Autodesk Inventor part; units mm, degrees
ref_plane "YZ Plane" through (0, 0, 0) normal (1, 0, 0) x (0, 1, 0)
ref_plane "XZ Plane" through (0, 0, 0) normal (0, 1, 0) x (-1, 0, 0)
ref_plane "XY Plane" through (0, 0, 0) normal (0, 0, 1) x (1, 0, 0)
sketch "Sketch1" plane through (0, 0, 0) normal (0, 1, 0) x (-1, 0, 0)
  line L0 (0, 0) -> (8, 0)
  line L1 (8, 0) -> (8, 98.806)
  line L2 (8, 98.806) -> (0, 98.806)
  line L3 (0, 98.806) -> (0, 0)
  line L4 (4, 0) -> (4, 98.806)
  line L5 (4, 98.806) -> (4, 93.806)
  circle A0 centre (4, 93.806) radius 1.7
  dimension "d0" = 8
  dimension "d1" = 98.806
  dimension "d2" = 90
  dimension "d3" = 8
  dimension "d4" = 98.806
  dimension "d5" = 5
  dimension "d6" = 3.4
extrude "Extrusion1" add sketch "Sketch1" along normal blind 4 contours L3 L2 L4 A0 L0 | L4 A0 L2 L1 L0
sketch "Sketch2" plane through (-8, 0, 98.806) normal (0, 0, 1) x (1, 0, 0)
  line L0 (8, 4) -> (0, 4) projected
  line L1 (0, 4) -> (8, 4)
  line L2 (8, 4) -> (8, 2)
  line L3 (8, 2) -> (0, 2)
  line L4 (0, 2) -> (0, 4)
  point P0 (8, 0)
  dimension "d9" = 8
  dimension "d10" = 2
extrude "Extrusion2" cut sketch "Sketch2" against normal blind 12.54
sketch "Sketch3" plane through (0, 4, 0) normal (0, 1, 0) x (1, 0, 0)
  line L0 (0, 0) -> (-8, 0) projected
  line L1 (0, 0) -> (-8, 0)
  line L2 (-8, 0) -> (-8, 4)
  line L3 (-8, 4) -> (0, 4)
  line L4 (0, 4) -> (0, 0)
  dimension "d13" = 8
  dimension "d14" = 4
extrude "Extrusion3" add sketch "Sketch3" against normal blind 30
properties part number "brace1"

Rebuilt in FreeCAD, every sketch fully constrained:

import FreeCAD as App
import Part
import Sketcher


def add_polygon(sketch, points):
    """Adds a closed chain of lines whose ends are joined by coincident constraints."""
    first, n = sketch.GeometryCount, len(points)
    for a, b in zip(points, points[1:] + points[:1]):
        sketch.addGeometry(Part.LineSegment(App.Vector(*a, 0), App.Vector(*b, 0)), False)
    for i in range(n):
        sketch.addConstraint(Sketcher.Constraint("Coincident", first + i, 2, first + (i + 1) % n, 1))

doc = App.newDocument("Part")
params = doc.addObject("Spreadsheet::Sheet", "Params")
for row, (alias, value) in enumerate([
    ("sketch1_diameter", "3.4 mm"),
    ("sketch1_width", "8 mm"),
    ("pad1_length", "4 mm"),
    ("sketch2_width", "8 mm"),
    ("sketch2_height", "2 mm"),
    ("pocket1_length", "12.54 mm"),
    ("sketch3_width", "8 mm"),
    ("sketch3_height", "4 mm"),
    ("pad2_length", "30 mm"),
], start=1):
    params.set(f"A{row}", alias)
    params.set(f"B{row}", "=" + value)
    params.setAlias(f"B{row}", alias)

body = doc.addObject("PartDesign::Body", "Body")

sketch1 = doc.addObject("Sketcher::SketchObject", "Sketch")
body.addObject(sketch1)
sketch1.AttachmentSupport = (doc.XZ_Plane, [""])
sketch1.MapMode = "FlatFace"
add_polygon(sketch1, [(0, 98.806), (0, 0), (-8, 0), (-8, 98.806)])
sketch1.addGeometry(Part.Circle(App.Vector(-4, 93.806, 0), App.Vector(0, 0, 1), 1.7), False)
sketch1.addConstraint([
    Sketcher.Constraint("Vertical", 0),
    Sketcher.Constraint("Horizontal", 1),
    Sketcher.Constraint("Vertical", 2),
    Sketcher.Constraint("Horizontal", 3),
    Sketcher.Constraint("Coincident", 0, 2, -1, 1),
    Sketcher.Constraint("Diameter", 4, 3.4),
    Sketcher.Constraint("DistanceX", 1, 2, 1, 1, 8.0),
    Sketcher.Constraint("DistanceY", 4, 3, 2, 2, 5.0),
    Sketcher.Constraint("DistanceY", 0, 2, 0, 1, 98.806),
    Sketcher.Constraint("DistanceX", 4, 3, -1, 1, 4.0),
])
sketch1.setExpression("Constraints[9]", "Params.sketch1_diameter")
sketch1.setExpression("Constraints[10]", "Params.sketch1_width")
pad1 = doc.addObject("PartDesign::Pad", "Pad")
body.addObject(pad1)
pad1.Profile = sketch1
pad1.setExpression("Length", "Params.pad1_length")
pad1.Reversed = True

sketch2 = doc.addObject("Sketcher::SketchObject", "Sketch001")
body.addObject(sketch2)
sketch2.AttachmentSupport = (doc.XY_Plane, [""])
sketch2.MapMode = "FlatFace"
sketch2.AttachmentOffset = App.Placement(App.Vector(0, 0, 98.806), App.Rotation())
add_polygon(sketch2, [(0, 2), (0, 4), (-8, 4), (-8, 2)])
sketch2.addConstraint([
    Sketcher.Constraint("Vertical", 0),
    Sketcher.Constraint("Horizontal", 1),
    Sketcher.Constraint("Vertical", 2),
    Sketcher.Constraint("Horizontal", 3),
    Sketcher.Constraint("PointOnObject", 0, 2, -2),
    Sketcher.Constraint("DistanceX", 1, 2, 1, 1, 8.0),
    Sketcher.Constraint("DistanceY", 0, 1, 0, 2, 2.0),
    Sketcher.Constraint("DistanceY", -1, 1, 2, 2, 2.0),
])
sketch2.setExpression("Constraints[9]", "Params.sketch2_width")
sketch2.setExpression("Constraints[10]", "Params.sketch2_height")
pocket1 = doc.addObject("PartDesign::Pocket", "Pocket")
body.addObject(pocket1)
pocket1.Profile = sketch2
pocket1.setExpression("Length", "Params.pocket1_length")

sketch3 = doc.addObject("Sketcher::SketchObject", "Sketch002")
body.addObject(sketch3)
sketch3.AttachmentSupport = (doc.XZ_Plane, [""])
sketch3.MapMode = "FlatFace"
sketch3.AttachmentOffset = App.Placement(App.Vector(0, 0, -4), App.Rotation())
add_polygon(sketch3, [(-8, 0), (0, 0), (0, -4), (-8, -4)])
sketch3.addConstraint([
    Sketcher.Constraint("Horizontal", 0),
    Sketcher.Constraint("Vertical", 1),
    Sketcher.Constraint("Horizontal", 2),
    Sketcher.Constraint("Vertical", 3),
    Sketcher.Constraint("Coincident", 0, 2, -1, 1),
    Sketcher.Constraint("DistanceX", 0, 1, 0, 2, 8.0),
    Sketcher.Constraint("DistanceY", 1, 2, 1, 1, 4.0),
])
sketch3.setExpression("Constraints[9]", "Params.sketch3_width")
sketch3.setExpression("Constraints[10]", "Params.sketch3_height")
pad2 = doc.addObject("PartDesign::Pad", "Pad001")
body.addObject(pad2)
pad2.Profile = sketch3
pad2.setExpression("Length", "Params.pad2_length")

doc.recompute()
